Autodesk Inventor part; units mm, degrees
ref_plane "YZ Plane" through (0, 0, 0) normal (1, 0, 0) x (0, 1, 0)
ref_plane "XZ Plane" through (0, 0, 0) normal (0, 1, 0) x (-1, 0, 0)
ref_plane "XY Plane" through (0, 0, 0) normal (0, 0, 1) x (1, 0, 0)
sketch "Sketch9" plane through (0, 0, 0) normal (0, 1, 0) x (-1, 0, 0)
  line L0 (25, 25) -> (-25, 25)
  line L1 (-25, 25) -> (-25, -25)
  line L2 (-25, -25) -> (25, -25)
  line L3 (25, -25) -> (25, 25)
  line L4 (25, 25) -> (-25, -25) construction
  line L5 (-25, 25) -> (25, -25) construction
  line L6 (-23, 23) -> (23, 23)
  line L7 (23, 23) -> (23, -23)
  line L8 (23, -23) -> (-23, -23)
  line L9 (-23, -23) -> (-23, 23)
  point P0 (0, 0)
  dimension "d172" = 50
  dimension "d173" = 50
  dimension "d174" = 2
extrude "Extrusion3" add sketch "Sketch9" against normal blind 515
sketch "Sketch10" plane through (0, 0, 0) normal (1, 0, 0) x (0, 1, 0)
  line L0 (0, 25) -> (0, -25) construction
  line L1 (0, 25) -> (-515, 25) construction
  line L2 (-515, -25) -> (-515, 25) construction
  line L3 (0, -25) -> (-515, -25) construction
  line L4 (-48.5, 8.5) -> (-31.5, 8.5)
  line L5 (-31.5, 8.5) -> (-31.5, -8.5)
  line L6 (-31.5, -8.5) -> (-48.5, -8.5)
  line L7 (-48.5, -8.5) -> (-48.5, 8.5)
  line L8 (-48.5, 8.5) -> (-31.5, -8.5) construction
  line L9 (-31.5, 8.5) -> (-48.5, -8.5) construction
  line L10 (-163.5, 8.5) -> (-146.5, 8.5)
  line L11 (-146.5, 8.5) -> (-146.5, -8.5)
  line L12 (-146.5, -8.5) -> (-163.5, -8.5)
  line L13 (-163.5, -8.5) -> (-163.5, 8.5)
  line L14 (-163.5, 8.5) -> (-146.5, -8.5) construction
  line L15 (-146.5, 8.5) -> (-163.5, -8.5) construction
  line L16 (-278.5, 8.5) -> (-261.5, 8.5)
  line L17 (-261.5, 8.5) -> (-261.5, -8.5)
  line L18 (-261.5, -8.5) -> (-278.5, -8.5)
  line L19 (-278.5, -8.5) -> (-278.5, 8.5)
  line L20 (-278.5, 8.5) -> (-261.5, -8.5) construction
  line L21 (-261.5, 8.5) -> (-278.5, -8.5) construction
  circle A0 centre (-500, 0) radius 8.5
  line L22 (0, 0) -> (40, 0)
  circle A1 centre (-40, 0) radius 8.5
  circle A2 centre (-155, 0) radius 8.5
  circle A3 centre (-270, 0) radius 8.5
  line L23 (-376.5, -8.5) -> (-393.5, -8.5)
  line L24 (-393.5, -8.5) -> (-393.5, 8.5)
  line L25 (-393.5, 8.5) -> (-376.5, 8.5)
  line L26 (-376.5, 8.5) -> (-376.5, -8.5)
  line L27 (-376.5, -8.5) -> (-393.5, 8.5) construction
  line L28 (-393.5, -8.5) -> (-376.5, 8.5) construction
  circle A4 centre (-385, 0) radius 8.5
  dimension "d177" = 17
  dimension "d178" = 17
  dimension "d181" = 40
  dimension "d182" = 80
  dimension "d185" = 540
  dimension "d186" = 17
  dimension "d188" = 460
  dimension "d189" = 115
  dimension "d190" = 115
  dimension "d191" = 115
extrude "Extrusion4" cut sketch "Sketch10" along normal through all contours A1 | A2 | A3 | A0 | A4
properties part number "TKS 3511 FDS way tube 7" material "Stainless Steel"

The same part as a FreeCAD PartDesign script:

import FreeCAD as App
import Part
import Sketcher
from FreeCAD import Vector
Q = App.Units.Quantity

doc = App.newDocument("Part")
body = doc.addObject("PartDesign::Body", "Body")

sketch1 = doc.addObject("Sketcher::SketchObject", "Sketch")
body.addObject(sketch1)
sketch1.AttachmentSupport = (doc.XZ_Plane, [""])
sketch1.MapMode = "FlatFace"
sketch1.addGeometry([
    Part.LineSegment(Vector(-25, -25, 0), Vector(-25, 25, 0)),
    Part.LineSegment(Vector(-25, 25, 0), Vector(25, 25, 0)),
    Part.LineSegment(Vector(25, 25, 0), Vector(25, -25, 0)),
    Part.LineSegment(Vector(25, -25, 0), Vector(-25, -25, 0)),
    Part.LineSegment(Vector(23, -23, 0), Vector(23, 23, 0)),
    Part.LineSegment(Vector(23, 23, 0), Vector(-23, 23, 0)),
    Part.LineSegment(Vector(-23, 23, 0), Vector(-23, -23, 0)),
    Part.LineSegment(Vector(-23, -23, 0), Vector(23, -23, 0)),
], False)
sketch1.addConstraint([
    Sketcher.Constraint("Coincident", 0, 2, 1, 1),
    Sketcher.Constraint("Coincident", 1, 2, 2, 1),
    Sketcher.Constraint("Coincident", 2, 2, 3, 1),
    Sketcher.Constraint("Coincident", 3, 2, 0, 1),
    Sketcher.Constraint("Coincident", 4, 2, 5, 1),
    Sketcher.Constraint("Coincident", 5, 2, 6, 1),
    Sketcher.Constraint("Coincident", 6, 2, 7, 1),
    Sketcher.Constraint("Coincident", 7, 2, 4, 1),
    Sketcher.Constraint("Vertical", 0),
    Sketcher.Constraint("Horizontal", 1),
    Sketcher.Constraint("Vertical", 2),
    Sketcher.Constraint("Horizontal", 3),
    Sketcher.Constraint("Vertical", 4),
    Sketcher.Constraint("Horizontal", 5),
    Sketcher.Constraint("Vertical", 6),
    Sketcher.Constraint("Horizontal", 7),
    Sketcher.Constraint("Symmetric", 0, 2, 2, 2, -1, 1),
    Sketcher.Constraint("Symmetric", 4, 2, 6, 2, -1, 1),
    Sketcher.Constraint("Equal", 3, 0),
    Sketcher.Constraint("Equal", 7, 4),
    Sketcher.Constraint("DistanceX", 1, 1, 1, 2, Q("50 mm")),
    Sketcher.Constraint("DistanceX", 4, 2, 1, 2, Q("2 mm")),
])
pad1 = doc.addObject("PartDesign::Pad", "Pad")
body.addObject(pad1)
pad1.Profile = sketch1
pad1.Length = 515

sketch2 = doc.addObject("Sketcher::SketchObject", "Sketch001")
body.addObject(sketch2)
sketch2.AttachmentSupport = (doc.YZ_Plane, [""])
sketch2.MapMode = "FlatFace"
sketch2.addGeometry([
    Part.Circle(Vector(-40, 0, 0), Vector(0, 0, 1), 8.5),
    Part.Circle(Vector(-155, 0, 0), Vector(0, 0, 1), 8.5),
    Part.Circle(Vector(-270, 0, 0), Vector(0, 0, 1), 8.5),
    Part.Circle(Vector(-500, 0, 0), Vector(0, 0, 1), 8.5),
    Part.Circle(Vector(-385, 0, 0), Vector(0, 0, 1), 8.5),
], False)
sketch2.addConstraint([
    Sketcher.Constraint("Equal", 0, 1),
    Sketcher.Constraint("Equal", 1, 2),
    Sketcher.Constraint("Equal", 2, 3),
    Sketcher.Constraint("Equal", 3, 4),
    Sketcher.Constraint("PointOnObject", 0, 3, -1),
    Sketcher.Constraint("PointOnObject", 1, 3, -1),
    Sketcher.Constraint("PointOnObject", 2, 3, -1),
    Sketcher.Constraint("PointOnObject", 3, 3, -1),
    Sketcher.Constraint("PointOnObject", 4, 3, -1),
    Sketcher.Constraint("Diameter", 0, Q("17 mm")),
    Sketcher.Constraint("DistanceX", 0, 3, -1, 1, Q("40 mm")),
    Sketcher.Constraint("DistanceX", 1, 3, 0, 3, Q("115 mm")),
    Sketcher.Constraint("DistanceX", 2, 3, 1, 3, Q("115 mm")),
    Sketcher.Constraint("DistanceX", 3, 3, 0, 3, Q("460 mm")),
    Sketcher.Constraint("DistanceX", 4, 3, 2, 3, Q("115 mm")),
])
pocket1 = doc.addObject("PartDesign::Pocket", "Pocket")
body.addObject(pocket1)
pocket1.Profile = sketch2
pocket1.Type = "ThroughAll"
pocket1.Reversed = True

doc.recompute()
